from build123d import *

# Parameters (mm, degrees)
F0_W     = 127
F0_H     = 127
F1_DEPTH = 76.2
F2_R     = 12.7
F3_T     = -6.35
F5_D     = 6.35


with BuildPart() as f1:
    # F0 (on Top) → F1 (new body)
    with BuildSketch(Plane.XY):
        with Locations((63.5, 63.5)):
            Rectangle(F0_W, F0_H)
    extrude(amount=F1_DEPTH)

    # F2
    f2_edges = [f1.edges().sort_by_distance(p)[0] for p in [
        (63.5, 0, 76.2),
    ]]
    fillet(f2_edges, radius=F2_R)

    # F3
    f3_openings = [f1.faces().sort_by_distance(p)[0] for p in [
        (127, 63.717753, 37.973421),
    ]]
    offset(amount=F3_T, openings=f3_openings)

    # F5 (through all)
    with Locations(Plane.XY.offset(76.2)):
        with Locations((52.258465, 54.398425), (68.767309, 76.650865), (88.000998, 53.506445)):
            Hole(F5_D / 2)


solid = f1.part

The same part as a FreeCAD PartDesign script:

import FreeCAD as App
import Part
import Sketcher
from FreeCAD import Vector
Q = App.Units.Quantity


def edges_at(feature, points):
    """Names of the edges that pass closest to the given points."""
    edges = feature.Shape.Edges
    near = lambda p: min(range(len(edges)), key=lambda i: edges[i].distToShape(Part.Vertex(*p))[0])
    return sorted({f"Edge{near(p) + 1}" for p in points})


def faces_at(feature, points):
    """Names of the faces that lie closest to the given points."""
    faces = feature.Shape.Faces
    near = lambda p: min(range(len(faces)), key=lambda i: faces[i].distToShape(Part.Vertex(*p))[0])
    return sorted({f"Face{near(p) + 1}" for p in points})


def add_polygon(sketch, points):
    """Adds a closed chain of lines whose ends are joined by coincident constraints."""
    first, n = sketch.GeometryCount, len(points)
    for a, b in zip(points, points[1:] + points[:1]):
        sketch.addGeometry(Part.LineSegment(App.Vector(*a, 0), App.Vector(*b, 0)), False)
    for i in range(n):
        sketch.addConstraint(Sketcher.Constraint("Coincident", first + i, 2, first + (i + 1) % n, 1))

doc = App.newDocument("Part")
body = doc.addObject("PartDesign::Body", "Body")

# Sketch on XY plane
sketch1 = body.newObject("Sketcher::SketchObject", "Sketch")
sketch1.AttachmentSupport = (doc.getObject("XY_Plane"), [""])
sketch1.MapMode = "FlatFace"
add_polygon(sketch1, [(0, 127), (0, 0), (127, 0), (127, 127)])  # lines 0-3
sketch1.addConstraint(Sketcher.Constraint("Vertical", 0))
sketch1.addConstraint(Sketcher.Constraint("Horizontal", 1))
sketch1.addConstraint(Sketcher.Constraint("Vertical", 2))
sketch1.addConstraint(Sketcher.Constraint("Horizontal", 3))
sketch1.addConstraint(Sketcher.Constraint("Coincident", 0, 2, -1, 1))
sketch1.addConstraint(Sketcher.Constraint("Equal", 3, 0))
sketch1.addConstraint(Sketcher.Constraint("DistanceX", 1, 1, 1, 2, Q("5 in")))
pad1 = body.newObject("PartDesign::Pad", "Pad")
pad1.Profile = sketch1
pad1.Length = Q("3 in")
doc.recompute()

fillet = body.newObject("PartDesign::Fillet", "Fillet")
fillet.Base = (pad1, edges_at(pad1, [(63.5, 0, 76.2)]))
fillet.Radius = Q("0.5 in")
doc.recompute()

thickness = body.newObject("PartDesign::Thickness", "Thickness")
thickness.Base = (fillet, faces_at(fillet, [(127, 63.5, 38.1)]))
thickness.Value = Q("0.25 in")
thickness.Reversed = True
thickness.Join = "Arc"

# Sketch on XY plane
sketch2 = body.newObject("Sketcher::SketchObject", "Sketch001")
sketch2.AttachmentSupport = (doc.getObject("XY_Plane"), [""])
sketch2.MapMode = "FlatFace"
sketch2.AttachmentOffset = App.Placement(Vector(0, 0, 3 * 25.4), App.Rotation())
sketch2.addGeometry(Part.Circle(Vector(52.3, 54.4, 0), Vector(0, 0, 1), 3.2), False)
sketch2.addGeometry(Part.Circle(Vector(68.8, 76.7, 0), Vector(0, 0, 1), 3.2), False)
sketch2.addGeometry(Part.Circle(Vector(88, 53.5, 0), Vector(0, 0, 1), 3.2), False)
sketch2.addConstraint(Sketcher.Constraint("Equal", 0, 1))
sketch2.addConstraint(Sketcher.Constraint("Equal", 1, 2))
sketch2.addConstraint(Sketcher.Constraint("Diameter", 0, Q("0.25 in")))
sketch2.addConstraint(Sketcher.Constraint("DistanceX", -1, 1, 1, 3, Q("68.767309 mm")))
sketch2.addConstraint(Sketcher.Constraint("DistanceY", 0, 3, 1, 3, Q("22.25244 mm")))
sketch2.addConstraint(Sketcher.Constraint("DistanceX", 1, 3, 2, 3, Q("19.233689 mm")))
sketch2.addConstraint(Sketcher.Constraint("DistanceY", 2, 3, 1, 3, Q("23.14442 mm")))
sketch2.addConstraint(Sketcher.Constraint("DistanceX", -1, 1, 0, 3, Q("52.258465 mm")))
sketch2.addConstraint(Sketcher.Constraint("DistanceY", -1, 1, 0, 3, Q("54.398425 mm")))
doc.recompute()
hole = body.newObject("PartDesign::Hole", "Hole")
hole.Profile = sketch2
hole.ThreadType = "None"
hole.Diameter = Q("0.25 in")
hole.DepthType = "ThroughAll"

doc.recompute()
